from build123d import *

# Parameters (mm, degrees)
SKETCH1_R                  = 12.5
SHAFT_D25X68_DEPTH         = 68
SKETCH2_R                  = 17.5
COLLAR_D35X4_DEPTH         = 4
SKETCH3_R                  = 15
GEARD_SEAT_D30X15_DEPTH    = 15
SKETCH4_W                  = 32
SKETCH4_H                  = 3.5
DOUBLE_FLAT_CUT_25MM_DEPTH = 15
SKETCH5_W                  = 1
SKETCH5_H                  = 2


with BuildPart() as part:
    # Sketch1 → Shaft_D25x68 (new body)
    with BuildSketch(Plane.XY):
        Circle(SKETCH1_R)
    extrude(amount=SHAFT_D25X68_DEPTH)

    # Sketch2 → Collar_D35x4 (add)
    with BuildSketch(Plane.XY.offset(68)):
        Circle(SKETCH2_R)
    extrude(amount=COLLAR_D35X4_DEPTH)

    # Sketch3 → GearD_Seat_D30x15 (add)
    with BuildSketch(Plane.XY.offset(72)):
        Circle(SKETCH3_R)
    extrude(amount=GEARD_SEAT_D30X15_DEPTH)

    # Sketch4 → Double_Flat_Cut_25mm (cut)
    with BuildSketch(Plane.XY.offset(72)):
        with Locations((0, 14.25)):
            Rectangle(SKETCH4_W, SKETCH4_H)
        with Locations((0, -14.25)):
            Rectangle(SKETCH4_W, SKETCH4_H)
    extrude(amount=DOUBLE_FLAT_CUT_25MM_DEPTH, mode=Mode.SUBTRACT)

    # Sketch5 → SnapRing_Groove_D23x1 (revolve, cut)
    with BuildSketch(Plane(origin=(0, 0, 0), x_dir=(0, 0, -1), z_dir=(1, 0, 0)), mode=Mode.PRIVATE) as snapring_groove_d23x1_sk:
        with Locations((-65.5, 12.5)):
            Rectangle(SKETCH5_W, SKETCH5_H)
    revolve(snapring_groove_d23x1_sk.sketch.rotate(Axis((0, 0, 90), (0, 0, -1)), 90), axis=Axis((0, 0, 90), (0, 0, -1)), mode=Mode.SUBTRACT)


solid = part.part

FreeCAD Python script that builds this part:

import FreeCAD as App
import Part
import Sketcher
Q = App.Units.Quantity


def add_polygon(sketch, points):
    """Adds a closed chain of lines whose ends are joined by coincident constraints."""
    first, n = sketch.GeometryCount, len(points)
    for a, b in zip(points, points[1:] + points[:1]):
        sketch.addGeometry(Part.LineSegment(App.Vector(*a, 0), App.Vector(*b, 0)), False)
    for i in range(n):
        sketch.addConstraint(Sketcher.Constraint("Coincident", first + i, 2, first + (i + 1) % n, 1))

doc = App.newDocument("Part")
body = doc.addObject("PartDesign::Body", "Body")

# Sketch on XY plane
sketch1 = body.newObject("Sketcher::SketchObject", "Sketch")
sketch1.AttachmentSupport = (doc.getObject("XY_Plane"), [""])
sketch1.MapMode = "FlatFace"
sketch1.addGeometry(Part.Circle(App.Vector(0, 0, 0), App.Vector(0, 0, 1), 12), False)
sketch1.addConstraint(Sketcher.Constraint("Coincident", 0, 3, -1, 1))
sketch1.addConstraint(Sketcher.Constraint("Diameter", 0, Q("25 mm")))
pad1 = body.newObject("PartDesign::Pad", "Pad")
pad1.Profile = sketch1
pad1.Length = 68

# Sketch on XY plane
sketch2 = body.newObject("Sketcher::SketchObject", "Sketch001")
sketch2.AttachmentSupport = (doc.getObject("XY_Plane"), [""])
sketch2.MapMode = "FlatFace"
sketch2.AttachmentOffset = App.Placement(App.Vector(0, 0, 68), App.Rotation())
sketch2.addGeometry(Part.Circle(App.Vector(0, 0, 0), App.Vector(0, 0, 1), 18), False)
sketch2.addConstraint(Sketcher.Constraint("Coincident", 0, 3, -1, 1))
sketch2.addConstraint(Sketcher.Constraint("Diameter", 0, Q("35 mm")))
pad2 = body.newObject("PartDesign::Pad", "Pad001")
pad2.Profile = sketch2
pad2.Length = 4

# Sketch on XY plane
sketch3 = body.newObject("Sketcher::SketchObject", "Sketch002")
sketch3.AttachmentSupport = (doc.getObject("XY_Plane"), [""])
sketch3.MapMode = "FlatFace"
sketch3.AttachmentOffset = App.Placement(App.Vector(0, 0, 72), App.Rotation())
sketch3.addGeometry(Part.Circle(App.Vector(0, 0, 0), App.Vector(0, 0, 1), 15), False)
sketch3.addConstraint(Sketcher.Constraint("Coincident", 0, 3, -1, 1))
sketch3.addConstraint(Sketcher.Constraint("Diameter", 0, Q("30 mm")))
pad3 = body.newObject("PartDesign::Pad", "Pad002")
pad3.Profile = sketch3
pad3.Length = 15

# Sketch on XY plane
sketch4 = body.newObject("Sketcher::SketchObject", "Sketch003")
sketch4.AttachmentSupport = (doc.getObject("XY_Plane"), [""])
sketch4.MapMode = "FlatFace"
sketch4.AttachmentOffset = App.Placement(App.Vector(0, 0, 72), App.Rotation())
add_polygon(sketch4, [(-16, 16), (-16, 12.5), (16, 12.5), (16, 16)])  # lines 0-3
add_polygon(sketch4, [(-16, -12.5), (-16, -16), (16, -16), (16, -12.5)])  # lines 4-7
sketch4.addConstraint(Sketcher.Constraint("Vertical", 0))
sketch4.addConstraint(Sketcher.Constraint("Horizontal", 1))
sketch4.addConstraint(Sketcher.Constraint("Vertical", 2))
sketch4.addConstraint(Sketcher.Constraint("Horizontal", 3))
sketch4.addConstraint(Sketcher.Constraint("Vertical", 4))
sketch4.addConstraint(Sketcher.Constraint("Horizontal", 5))
sketch4.addConstraint(Sketcher.Constraint("Vertical", 6))
sketch4.addConstraint(Sketcher.Constraint("Horizontal", 7))
sketch4.addConstraint(Sketcher.Constraint("Symmetric", 2, 2, 4, 2, -1, 1))
sketch4.addConstraint(Sketcher.Constraint("Symmetric", 0, 2, 6, 2, -1, 1))
sketch4.addConstraint(Sketcher.Constraint("Vertical", 3, 2, 4, 2))
sketch4.addConstraint(Sketcher.Constraint("DistanceX", 1, 1, 1, 2, Q("32 mm")))
sketch4.addConstraint(Sketcher.Constraint("DistanceY", 0, 2, 0, 1, Q("3.5 mm")))
sketch4.addConstraint(Sketcher.Constraint("DistanceY", -1, 1, 2, 2, Q("16 mm")))
pocket1 = body.newObject("PartDesign::Pocket", "Pocket")
pocket1.Profile = sketch4
pocket1.Length = 15
pocket1.Reversed = True

# Sketch on YZ plane
sketch5 = body.newObject("Sketcher::SketchObject", "Sketch004")
sketch5.AttachmentSupport = (doc.getObject("YZ_Plane"), [""])
sketch5.MapMode = "FlatFace"
add_polygon(sketch5, [(13.5, 66), (11.5, 66), (11.5, 65), (13.5, 65)])  # lines 0-3
sketch5.addConstraint(Sketcher.Constraint("Horizontal", 0))
sketch5.addConstraint(Sketcher.Constraint("Vertical", 1))
sketch5.addConstraint(Sketcher.Constraint("Horizontal", 2))
sketch5.addConstraint(Sketcher.Constraint("Vertical", 3))
sketch5.addConstraint(Sketcher.Constraint("DistanceX", 0, 2, 0, 1, Q("2 mm")))
sketch5.addConstraint(Sketcher.Constraint("DistanceY", 1, 2, 1, 1, Q("1 mm")))
sketch5.addConstraint(Sketcher.Constraint("DistanceY", -1, 1, 0, 2, Q("66 mm")))
sketch5.addConstraint(Sketcher.Constraint("DistanceX", -1, 1, 0, 2, Q("11.5 mm")))
groove = body.newObject("PartDesign::Groove", "Groove")
groove.Profile = sketch5
groove.ReferenceAxis = (sketch5, ["V_Axis"])
groove.Angle = 360

doc.recompute()
